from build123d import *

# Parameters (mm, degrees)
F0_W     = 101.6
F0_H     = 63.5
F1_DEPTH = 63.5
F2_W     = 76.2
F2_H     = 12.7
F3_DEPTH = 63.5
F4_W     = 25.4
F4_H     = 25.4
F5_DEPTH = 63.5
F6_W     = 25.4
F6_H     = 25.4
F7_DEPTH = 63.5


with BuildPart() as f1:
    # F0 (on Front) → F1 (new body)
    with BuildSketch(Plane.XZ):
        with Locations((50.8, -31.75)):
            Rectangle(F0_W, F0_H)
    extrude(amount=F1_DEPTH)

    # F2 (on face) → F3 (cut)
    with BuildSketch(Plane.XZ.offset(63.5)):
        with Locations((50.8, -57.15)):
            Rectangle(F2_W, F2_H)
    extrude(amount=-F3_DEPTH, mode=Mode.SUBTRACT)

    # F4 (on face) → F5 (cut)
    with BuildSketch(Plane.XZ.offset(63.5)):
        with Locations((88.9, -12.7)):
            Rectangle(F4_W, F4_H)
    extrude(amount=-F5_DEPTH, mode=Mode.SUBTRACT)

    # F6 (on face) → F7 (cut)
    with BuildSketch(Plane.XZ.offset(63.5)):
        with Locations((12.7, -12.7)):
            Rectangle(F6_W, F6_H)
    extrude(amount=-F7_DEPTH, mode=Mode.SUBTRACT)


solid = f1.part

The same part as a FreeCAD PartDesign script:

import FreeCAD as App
import Part
import Sketcher
from FreeCAD import Vector
Q = App.Units.Quantity


def add_polygon(sketch, points):
    """Adds a closed chain of lines whose ends are joined by coincident constraints."""
    first, n = sketch.GeometryCount, len(points)
    for a, b in zip(points, points[1:] + points[:1]):
        sketch.addGeometry(Part.LineSegment(App.Vector(*a, 0), App.Vector(*b, 0)), False)
    for i in range(n):
        sketch.addConstraint(Sketcher.Constraint("Coincident", first + i, 2, first + (i + 1) % n, 1))

doc = App.newDocument("Part")
params = doc.addObject("Spreadsheet::Sheet", "Params")
for row, (alias, value) in enumerate([
    ("sketch1_width", "4 in"),
    ("sketch1_height", "2.5 in"),
    ("pad1_length", "2.5 in"),
    ("sketch2_width", "3 in"),
    ("sketch2_height", "0.5 in"),
    ("pocket1_length", "2.5 in"),
    ("sketch3_width", "1 in"),
    ("pocket2_length", "2.5 in"),
    ("sketch4_width", "1 in"),
    ("pocket3_length", "2.5 in"),
], start=1):
    params.set(f"A{row}", alias)
    params.set(f"B{row}", "=" + value)
    params.setAlias(f"B{row}", alias)

body = doc.addObject("PartDesign::Body", "Body")

# Sketch on XZ plane
sketch1 = doc.addObject("Sketcher::SketchObject", "Sketch")
body.addObject(sketch1)
sketch1.AttachmentSupport = (doc.XZ_Plane, [""])
sketch1.MapMode = "FlatFace"
add_polygon(sketch1, [(0, 0), (0, -64), (102, -64), (102, 0)])  # lines 0-3
sketch1.addConstraint([
    Sketcher.Constraint("Vertical", 0),
    Sketcher.Constraint("Horizontal", 1),
    Sketcher.Constraint("Vertical", 2),
    Sketcher.Constraint("Horizontal", 3),
    Sketcher.Constraint("Coincident", 3, 2, -1, 1),
    Sketcher.Constraint("DistanceX", 1, 1, 1, 2, Q("4 in")),
    Sketcher.Constraint("DistanceY", 0, 2, 0, 1, Q("2.5 in")),
])
sketch1.setExpression("Constraints[9]", "Params.sketch1_width")
sketch1.setExpression("Constraints[10]", "Params.sketch1_height")
pad1 = doc.addObject("PartDesign::Pad", "Pad")
body.addObject(pad1)
pad1.Profile = sketch1
pad1.setExpression("Length", "Params.pad1_length")

# Sketch on XZ plane
sketch2 = doc.addObject("Sketcher::SketchObject", "Sketch001")
body.addObject(sketch2)
sketch2.AttachmentSupport = (doc.XZ_Plane, [""])
sketch2.MapMode = "FlatFace"
sketch2.AttachmentOffset = App.Placement(Vector(0, 0, 2.5 * 25.4), App.Rotation())
add_polygon(sketch2, [(13, -51), (13, -64), (89, -64), (89, -51)])  # lines 0-3
sketch2.addConstraint([
    Sketcher.Constraint("Vertical", 0),
    Sketcher.Constraint("Horizontal", 1),
    Sketcher.Constraint("Vertical", 2),
    Sketcher.Constraint("Horizontal", 3),
    Sketcher.Constraint("DistanceX", 1, 1, 1, 2, Q("3 in")),
    Sketcher.Constraint("DistanceY", 0, 2, 0, 1, Q("0.5 in")),
    Sketcher.Constraint("DistanceY", 2, 2, -1, 1, Q("2 in")),
    Sketcher.Constraint("DistanceX", -1, 1, 0, 2, Q("0.5 in")),
])
sketch2.setExpression("Constraints[8]", "Params.sketch2_width")
sketch2.setExpression("Constraints[9]", "Params.sketch2_height")
pocket1 = doc.addObject("PartDesign::Pocket", "Pocket")
body.addObject(pocket1)
pocket1.Profile = sketch2
pocket1.setExpression("Length", "Params.pocket1_length")

# Sketch on XZ plane
sketch3 = doc.addObject("Sketcher::SketchObject", "Sketch002")
body.addObject(sketch3)
sketch3.AttachmentSupport = (doc.XZ_Plane, [""])
sketch3.MapMode = "FlatFace"
sketch3.AttachmentOffset = App.Placement(Vector(0, 0, 2.5 * 25.4), App.Rotation())
add_polygon(sketch3, [(76, 0), (76, -25), (102, -25), (102, 0)])  # lines 0-3
sketch3.addConstraint([
    Sketcher.Constraint("Vertical", 0),
    Sketcher.Constraint("Horizontal", 1),
    Sketcher.Constraint("Vertical", 2),
    Sketcher.Constraint("Horizontal", 3),
    Sketcher.Constraint("PointOnObject", 2, 2, -1),
    Sketcher.Constraint("Equal", 3, 0),
    Sketcher.Constraint("DistanceX", 1, 1, 1, 2, Q("1 in")),
    Sketcher.Constraint("DistanceX", -1, 1, 0, 2, Q("3 in")),
])
sketch3.setExpression("Constraints[10]", "Params.sketch3_width")
pocket2 = doc.addObject("PartDesign::Pocket", "Pocket001")
body.addObject(pocket2)
pocket2.Profile = sketch3
pocket2.setExpression("Length", "Params.pocket2_length")

# Sketch on XZ plane
sketch4 = doc.addObject("Sketcher::SketchObject", "Sketch003")
body.addObject(sketch4)
sketch4.AttachmentSupport = (doc.XZ_Plane, [""])
sketch4.MapMode = "FlatFace"
sketch4.AttachmentOffset = App.Placement(Vector(0, 0, 2.5 * 25.4), App.Rotation())
add_polygon(sketch4, [(0, 0), (0, -25), (25, -25), (25, 0)])  # lines 0-3
sketch4.addConstraint([
    Sketcher.Constraint("Vertical", 0),
    Sketcher.Constraint("Horizontal", 1),
    Sketcher.Constraint("Vertical", 2),
    Sketcher.Constraint("Horizontal", 3),
    Sketcher.Constraint("Coincident", 3, 2, -1, 1),
    Sketcher.Constraint("Equal", 3, 0),
    Sketcher.Constraint("DistanceX", 1, 1, 1, 2, Q("1 in")),
])
sketch4.setExpression("Constraints[10]", "Params.sketch4_width")
pocket3 = doc.addObject("PartDesign::Pocket", "Pocket002")
body.addObject(pocket3)
pocket3.Profile = sketch4
pocket3.setExpression("Length", "Params.pocket3_length")

doc.recompute()
